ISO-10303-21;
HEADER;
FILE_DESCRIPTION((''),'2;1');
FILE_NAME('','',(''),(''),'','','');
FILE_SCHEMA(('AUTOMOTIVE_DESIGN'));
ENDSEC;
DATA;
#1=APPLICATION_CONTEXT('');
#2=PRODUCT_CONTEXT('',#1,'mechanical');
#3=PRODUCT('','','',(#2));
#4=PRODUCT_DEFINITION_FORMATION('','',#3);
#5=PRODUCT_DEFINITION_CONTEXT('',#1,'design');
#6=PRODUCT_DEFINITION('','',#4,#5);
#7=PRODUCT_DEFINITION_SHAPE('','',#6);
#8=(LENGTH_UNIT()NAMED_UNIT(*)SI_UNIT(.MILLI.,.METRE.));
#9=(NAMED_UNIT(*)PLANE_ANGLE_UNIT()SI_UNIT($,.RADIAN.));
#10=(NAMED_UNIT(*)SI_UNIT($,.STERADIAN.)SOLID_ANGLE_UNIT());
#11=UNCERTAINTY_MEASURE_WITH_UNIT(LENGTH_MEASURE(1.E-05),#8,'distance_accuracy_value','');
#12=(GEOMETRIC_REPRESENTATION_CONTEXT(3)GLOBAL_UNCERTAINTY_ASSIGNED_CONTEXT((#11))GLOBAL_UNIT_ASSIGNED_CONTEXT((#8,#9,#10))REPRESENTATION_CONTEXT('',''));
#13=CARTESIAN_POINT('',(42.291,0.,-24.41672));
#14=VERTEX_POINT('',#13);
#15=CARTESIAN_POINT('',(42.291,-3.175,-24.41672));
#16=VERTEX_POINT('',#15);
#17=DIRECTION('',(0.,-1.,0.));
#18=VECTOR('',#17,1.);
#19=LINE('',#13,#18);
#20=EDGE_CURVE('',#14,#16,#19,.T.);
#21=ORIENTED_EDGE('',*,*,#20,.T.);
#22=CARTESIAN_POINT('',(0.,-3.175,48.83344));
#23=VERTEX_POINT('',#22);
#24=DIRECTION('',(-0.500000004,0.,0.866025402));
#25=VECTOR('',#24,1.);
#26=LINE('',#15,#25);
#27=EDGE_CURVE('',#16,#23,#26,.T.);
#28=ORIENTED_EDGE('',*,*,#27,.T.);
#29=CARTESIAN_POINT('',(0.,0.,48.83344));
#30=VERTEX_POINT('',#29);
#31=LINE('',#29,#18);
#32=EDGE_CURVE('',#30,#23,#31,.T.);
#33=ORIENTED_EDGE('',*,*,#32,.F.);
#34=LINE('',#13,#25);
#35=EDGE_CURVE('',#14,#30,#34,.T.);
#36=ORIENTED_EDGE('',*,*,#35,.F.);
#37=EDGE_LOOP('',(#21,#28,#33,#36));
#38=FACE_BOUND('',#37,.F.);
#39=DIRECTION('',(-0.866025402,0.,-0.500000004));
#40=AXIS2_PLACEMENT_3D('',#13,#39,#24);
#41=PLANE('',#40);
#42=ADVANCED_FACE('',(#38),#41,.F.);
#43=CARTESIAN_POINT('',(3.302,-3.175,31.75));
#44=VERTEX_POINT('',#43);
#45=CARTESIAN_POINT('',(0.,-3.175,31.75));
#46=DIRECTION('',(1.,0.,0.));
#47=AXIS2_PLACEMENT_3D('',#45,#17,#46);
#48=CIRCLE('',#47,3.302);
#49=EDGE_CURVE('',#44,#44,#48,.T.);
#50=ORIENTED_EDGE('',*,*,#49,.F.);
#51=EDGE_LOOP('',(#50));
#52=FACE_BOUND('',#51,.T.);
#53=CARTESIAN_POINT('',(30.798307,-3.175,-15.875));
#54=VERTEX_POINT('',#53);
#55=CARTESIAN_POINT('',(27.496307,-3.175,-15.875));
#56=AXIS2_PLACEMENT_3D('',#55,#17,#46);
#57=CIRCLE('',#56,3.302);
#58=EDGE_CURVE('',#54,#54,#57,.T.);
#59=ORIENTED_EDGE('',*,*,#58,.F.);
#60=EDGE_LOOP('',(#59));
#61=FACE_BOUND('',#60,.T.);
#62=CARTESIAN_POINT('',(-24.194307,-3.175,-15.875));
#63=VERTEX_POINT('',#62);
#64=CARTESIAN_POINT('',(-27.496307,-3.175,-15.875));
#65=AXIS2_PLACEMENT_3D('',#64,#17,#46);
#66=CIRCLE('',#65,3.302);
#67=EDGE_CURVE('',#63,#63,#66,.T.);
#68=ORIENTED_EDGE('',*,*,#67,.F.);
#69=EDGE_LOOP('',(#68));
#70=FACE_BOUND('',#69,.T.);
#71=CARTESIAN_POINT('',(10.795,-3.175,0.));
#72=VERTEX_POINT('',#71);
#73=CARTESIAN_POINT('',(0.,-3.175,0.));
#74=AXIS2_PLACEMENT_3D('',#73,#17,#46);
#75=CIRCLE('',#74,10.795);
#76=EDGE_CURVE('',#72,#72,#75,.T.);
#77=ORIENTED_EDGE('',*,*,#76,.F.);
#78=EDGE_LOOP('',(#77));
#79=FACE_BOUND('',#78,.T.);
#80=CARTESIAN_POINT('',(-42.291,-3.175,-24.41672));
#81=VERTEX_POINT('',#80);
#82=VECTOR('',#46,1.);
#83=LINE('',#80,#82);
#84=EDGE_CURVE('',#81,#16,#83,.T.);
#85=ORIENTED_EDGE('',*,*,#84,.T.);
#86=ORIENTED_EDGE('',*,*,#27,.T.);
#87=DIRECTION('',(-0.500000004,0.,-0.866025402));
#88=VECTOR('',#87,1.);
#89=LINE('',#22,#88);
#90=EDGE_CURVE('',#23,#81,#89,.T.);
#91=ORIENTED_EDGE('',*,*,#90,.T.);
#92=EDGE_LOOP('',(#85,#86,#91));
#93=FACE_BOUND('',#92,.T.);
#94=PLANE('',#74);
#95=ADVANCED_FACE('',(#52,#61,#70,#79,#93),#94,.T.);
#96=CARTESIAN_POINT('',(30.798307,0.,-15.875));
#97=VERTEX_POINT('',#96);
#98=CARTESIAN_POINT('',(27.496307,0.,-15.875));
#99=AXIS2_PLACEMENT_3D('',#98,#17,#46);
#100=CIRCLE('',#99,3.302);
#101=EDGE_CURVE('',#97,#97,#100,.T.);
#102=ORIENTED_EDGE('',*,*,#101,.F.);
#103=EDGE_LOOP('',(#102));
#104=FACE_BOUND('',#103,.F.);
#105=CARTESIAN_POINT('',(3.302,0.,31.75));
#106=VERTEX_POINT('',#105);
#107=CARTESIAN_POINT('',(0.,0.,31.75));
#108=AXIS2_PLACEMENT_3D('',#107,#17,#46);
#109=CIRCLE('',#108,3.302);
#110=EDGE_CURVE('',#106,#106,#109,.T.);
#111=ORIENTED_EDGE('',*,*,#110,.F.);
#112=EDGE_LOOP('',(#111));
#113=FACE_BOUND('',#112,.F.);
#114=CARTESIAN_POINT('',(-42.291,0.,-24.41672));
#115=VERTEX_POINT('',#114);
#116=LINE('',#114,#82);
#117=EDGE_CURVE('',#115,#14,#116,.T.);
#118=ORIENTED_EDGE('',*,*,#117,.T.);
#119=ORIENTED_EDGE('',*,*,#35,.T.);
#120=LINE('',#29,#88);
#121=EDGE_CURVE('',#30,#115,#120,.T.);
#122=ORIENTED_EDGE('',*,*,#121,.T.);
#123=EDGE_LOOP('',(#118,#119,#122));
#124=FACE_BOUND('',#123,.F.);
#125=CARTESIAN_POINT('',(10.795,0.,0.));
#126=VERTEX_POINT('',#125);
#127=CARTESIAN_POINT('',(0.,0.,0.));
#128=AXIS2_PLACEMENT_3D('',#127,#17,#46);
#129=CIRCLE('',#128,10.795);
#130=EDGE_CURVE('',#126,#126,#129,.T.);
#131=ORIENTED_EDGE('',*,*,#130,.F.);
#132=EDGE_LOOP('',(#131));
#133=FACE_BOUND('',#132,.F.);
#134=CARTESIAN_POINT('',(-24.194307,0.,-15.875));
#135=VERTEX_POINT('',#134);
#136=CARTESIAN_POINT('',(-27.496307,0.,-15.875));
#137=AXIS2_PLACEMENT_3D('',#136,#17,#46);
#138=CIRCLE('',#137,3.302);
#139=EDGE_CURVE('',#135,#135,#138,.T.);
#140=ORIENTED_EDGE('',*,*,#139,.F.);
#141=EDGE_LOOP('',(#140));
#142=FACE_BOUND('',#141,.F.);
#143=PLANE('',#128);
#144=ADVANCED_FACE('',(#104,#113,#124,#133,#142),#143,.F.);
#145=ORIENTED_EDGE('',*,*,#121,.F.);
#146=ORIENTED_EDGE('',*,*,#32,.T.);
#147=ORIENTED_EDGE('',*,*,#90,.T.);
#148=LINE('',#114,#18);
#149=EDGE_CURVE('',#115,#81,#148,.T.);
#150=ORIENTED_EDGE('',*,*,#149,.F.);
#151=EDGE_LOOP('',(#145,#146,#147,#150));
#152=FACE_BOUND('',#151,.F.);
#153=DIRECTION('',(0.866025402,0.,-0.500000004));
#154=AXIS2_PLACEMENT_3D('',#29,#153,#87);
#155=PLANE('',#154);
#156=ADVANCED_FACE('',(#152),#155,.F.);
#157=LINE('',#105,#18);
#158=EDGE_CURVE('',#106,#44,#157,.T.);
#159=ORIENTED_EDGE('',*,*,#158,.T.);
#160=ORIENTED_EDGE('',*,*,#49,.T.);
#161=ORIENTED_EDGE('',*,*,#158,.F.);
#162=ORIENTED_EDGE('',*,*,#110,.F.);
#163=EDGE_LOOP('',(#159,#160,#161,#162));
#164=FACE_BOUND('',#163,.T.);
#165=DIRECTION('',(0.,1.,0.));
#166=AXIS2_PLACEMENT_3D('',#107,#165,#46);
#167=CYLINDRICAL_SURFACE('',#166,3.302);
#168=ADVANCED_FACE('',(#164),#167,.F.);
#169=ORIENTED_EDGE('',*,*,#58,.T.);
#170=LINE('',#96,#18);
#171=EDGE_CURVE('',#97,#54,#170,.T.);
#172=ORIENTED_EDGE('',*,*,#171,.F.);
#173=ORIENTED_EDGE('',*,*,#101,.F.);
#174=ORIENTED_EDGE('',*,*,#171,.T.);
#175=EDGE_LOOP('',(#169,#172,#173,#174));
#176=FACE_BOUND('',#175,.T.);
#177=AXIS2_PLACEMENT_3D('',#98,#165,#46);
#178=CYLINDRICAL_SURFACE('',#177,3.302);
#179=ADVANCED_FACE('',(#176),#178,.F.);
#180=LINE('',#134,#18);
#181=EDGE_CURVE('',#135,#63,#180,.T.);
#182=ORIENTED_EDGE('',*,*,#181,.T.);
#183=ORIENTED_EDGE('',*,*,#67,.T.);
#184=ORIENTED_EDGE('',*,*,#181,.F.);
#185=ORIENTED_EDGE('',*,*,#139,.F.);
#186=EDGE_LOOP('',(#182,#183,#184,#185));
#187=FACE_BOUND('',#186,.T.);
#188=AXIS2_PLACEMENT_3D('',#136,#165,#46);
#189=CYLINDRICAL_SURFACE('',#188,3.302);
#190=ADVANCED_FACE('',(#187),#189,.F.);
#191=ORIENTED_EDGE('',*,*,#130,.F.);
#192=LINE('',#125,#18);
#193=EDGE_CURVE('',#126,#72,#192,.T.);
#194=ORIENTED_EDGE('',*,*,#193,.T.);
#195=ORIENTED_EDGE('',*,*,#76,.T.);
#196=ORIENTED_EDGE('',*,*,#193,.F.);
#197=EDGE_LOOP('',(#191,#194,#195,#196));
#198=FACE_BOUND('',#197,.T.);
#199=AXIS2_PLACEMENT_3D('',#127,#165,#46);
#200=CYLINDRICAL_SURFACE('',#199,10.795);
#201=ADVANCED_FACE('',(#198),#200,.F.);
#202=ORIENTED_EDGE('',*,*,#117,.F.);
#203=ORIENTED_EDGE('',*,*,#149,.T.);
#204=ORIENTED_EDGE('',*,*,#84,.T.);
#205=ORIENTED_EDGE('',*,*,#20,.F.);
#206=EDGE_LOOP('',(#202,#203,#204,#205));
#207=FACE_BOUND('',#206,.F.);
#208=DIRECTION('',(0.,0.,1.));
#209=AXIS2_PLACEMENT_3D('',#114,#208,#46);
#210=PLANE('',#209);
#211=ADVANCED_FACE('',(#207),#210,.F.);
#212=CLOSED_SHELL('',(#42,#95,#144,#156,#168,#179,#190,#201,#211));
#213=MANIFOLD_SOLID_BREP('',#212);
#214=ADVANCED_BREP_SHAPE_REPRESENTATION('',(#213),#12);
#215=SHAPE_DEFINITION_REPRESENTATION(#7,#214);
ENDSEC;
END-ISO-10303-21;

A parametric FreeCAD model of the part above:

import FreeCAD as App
import Part
import Sketcher
Q = App.Units.Quantity


def add_polygon(sketch, points):
    """Adds a closed chain of lines whose ends are joined by coincident constraints."""
    first, n = sketch.GeometryCount, len(points)
    for a, b in zip(points, points[1:] + points[:1]):
        sketch.addGeometry(Part.LineSegment(App.Vector(*a, 0), App.Vector(*b, 0)), False)
    for i in range(n):
        sketch.addConstraint(Sketcher.Constraint("Coincident", first + i, 2, first + (i + 1) % n, 1))

doc = App.newDocument("Part")
params = doc.addObject("Spreadsheet::Sheet", "Params")
for row, (alias, value) in enumerate([
    ("sketch1_diameter", "0.26 in"),
    ("sketch1_diameter2", "0.85 in"),
    ("sketch1_width", "3.33 in"),
    ("pad1_length", "0.125 in"),
], start=1):
    params.set(f"A{row}", alias)
    params.set(f"B{row}", "=" + value)
    params.setAlias(f"B{row}", alias)

body = doc.addObject("PartDesign::Body", "Body")

# Sketch on XZ plane
sketch1 = doc.addObject("Sketcher::SketchObject", "Sketch")
body.addObject(sketch1)
sketch1.AttachmentSupport = (doc.XZ_Plane, [""])
sketch1.MapMode = "FlatFace"
add_polygon(sketch1, [(42.3, -24.4), (0, 48.8), (-42.3, -24.4)])  # lines 0-2
sketch1.addGeometry(Part.Circle(App.Vector(-27.5, -15.9, 0), App.Vector(0, 0, 1), 3.3), False)  # 3
sketch1.addGeometry(Part.Circle(App.Vector(27.5, -15.9, 0), App.Vector(0, 0, 1), 3.3), False)  # 4
sketch1.addGeometry(Part.Circle(App.Vector(0, 0, 0), App.Vector(0, 0, 1), 10.8), False)  # 5
sketch1.addGeometry(Part.Circle(App.Vector(0, 31.8, 0), App.Vector(0, 0, 1), 3.3), False)  # 6
sketch1.addConstraint(Sketcher.Constraint("Horizontal", 2))
sketch1.addConstraint(Sketcher.Constraint("Coincident", 5, 3, -1, 1))
sketch1.addConstraint(Sketcher.Constraint("Equal", 3, 4))
sketch1.addConstraint(Sketcher.Constraint("Equal", 4, 6))
sketch1.addConstraint(Sketcher.Constraint("Symmetric", 3, 3, 4, 3, -2))
sketch1.addConstraint(Sketcher.Constraint("PointOnObject", 6, 3, -2))
sketch1.addConstraint(Sketcher.Constraint("PointOnObject", 0, 2, -2))
sketch1.addConstraint(Sketcher.Constraint("Equal", 0, 1))
sketch1.addConstraint(Sketcher.Constraint("Diameter", 3, Q("0.26 in")))
sketch1.addConstraint(Sketcher.Constraint("Diameter", 5, Q("0.85 in")))
sketch1.addConstraint(Sketcher.Constraint("Angle", 0, Q("120 deg")))
sketch1.addConstraint(Sketcher.Constraint("DistanceX", 2, 1, 2, 2, Q("3.33 in")))
sketch1.addConstraint(Sketcher.Constraint("DistanceY", -1, 1, 6, 3, Q("1.25 in")))
sketch1.addConstraint(Sketcher.Constraint("DistanceY", 3, 3, -1, 1, Q("0.625 in")))
sketch1.addConstraint(Sketcher.Constraint("DistanceY", -1, 1, 0, 2, Q("48.83344 mm")))
sketch1.addConstraint(Sketcher.Constraint("DistanceX", 3, 3, -1, 1, Q("27.496307 mm")))
sketch1.setExpression("Constraints[11]", "Params.sketch1_diameter")
sketch1.setExpression("Constraints[12]", "Params.sketch1_diameter2")
sketch1.setExpression("Constraints[14]", "Params.sketch1_width")
pad1 = doc.addObject("PartDesign::Pad", "Pad")
body.addObject(pad1)
pad1.Profile = sketch1
pad1.setExpression("Length", "Params.pad1_length")

doc.recompute()
